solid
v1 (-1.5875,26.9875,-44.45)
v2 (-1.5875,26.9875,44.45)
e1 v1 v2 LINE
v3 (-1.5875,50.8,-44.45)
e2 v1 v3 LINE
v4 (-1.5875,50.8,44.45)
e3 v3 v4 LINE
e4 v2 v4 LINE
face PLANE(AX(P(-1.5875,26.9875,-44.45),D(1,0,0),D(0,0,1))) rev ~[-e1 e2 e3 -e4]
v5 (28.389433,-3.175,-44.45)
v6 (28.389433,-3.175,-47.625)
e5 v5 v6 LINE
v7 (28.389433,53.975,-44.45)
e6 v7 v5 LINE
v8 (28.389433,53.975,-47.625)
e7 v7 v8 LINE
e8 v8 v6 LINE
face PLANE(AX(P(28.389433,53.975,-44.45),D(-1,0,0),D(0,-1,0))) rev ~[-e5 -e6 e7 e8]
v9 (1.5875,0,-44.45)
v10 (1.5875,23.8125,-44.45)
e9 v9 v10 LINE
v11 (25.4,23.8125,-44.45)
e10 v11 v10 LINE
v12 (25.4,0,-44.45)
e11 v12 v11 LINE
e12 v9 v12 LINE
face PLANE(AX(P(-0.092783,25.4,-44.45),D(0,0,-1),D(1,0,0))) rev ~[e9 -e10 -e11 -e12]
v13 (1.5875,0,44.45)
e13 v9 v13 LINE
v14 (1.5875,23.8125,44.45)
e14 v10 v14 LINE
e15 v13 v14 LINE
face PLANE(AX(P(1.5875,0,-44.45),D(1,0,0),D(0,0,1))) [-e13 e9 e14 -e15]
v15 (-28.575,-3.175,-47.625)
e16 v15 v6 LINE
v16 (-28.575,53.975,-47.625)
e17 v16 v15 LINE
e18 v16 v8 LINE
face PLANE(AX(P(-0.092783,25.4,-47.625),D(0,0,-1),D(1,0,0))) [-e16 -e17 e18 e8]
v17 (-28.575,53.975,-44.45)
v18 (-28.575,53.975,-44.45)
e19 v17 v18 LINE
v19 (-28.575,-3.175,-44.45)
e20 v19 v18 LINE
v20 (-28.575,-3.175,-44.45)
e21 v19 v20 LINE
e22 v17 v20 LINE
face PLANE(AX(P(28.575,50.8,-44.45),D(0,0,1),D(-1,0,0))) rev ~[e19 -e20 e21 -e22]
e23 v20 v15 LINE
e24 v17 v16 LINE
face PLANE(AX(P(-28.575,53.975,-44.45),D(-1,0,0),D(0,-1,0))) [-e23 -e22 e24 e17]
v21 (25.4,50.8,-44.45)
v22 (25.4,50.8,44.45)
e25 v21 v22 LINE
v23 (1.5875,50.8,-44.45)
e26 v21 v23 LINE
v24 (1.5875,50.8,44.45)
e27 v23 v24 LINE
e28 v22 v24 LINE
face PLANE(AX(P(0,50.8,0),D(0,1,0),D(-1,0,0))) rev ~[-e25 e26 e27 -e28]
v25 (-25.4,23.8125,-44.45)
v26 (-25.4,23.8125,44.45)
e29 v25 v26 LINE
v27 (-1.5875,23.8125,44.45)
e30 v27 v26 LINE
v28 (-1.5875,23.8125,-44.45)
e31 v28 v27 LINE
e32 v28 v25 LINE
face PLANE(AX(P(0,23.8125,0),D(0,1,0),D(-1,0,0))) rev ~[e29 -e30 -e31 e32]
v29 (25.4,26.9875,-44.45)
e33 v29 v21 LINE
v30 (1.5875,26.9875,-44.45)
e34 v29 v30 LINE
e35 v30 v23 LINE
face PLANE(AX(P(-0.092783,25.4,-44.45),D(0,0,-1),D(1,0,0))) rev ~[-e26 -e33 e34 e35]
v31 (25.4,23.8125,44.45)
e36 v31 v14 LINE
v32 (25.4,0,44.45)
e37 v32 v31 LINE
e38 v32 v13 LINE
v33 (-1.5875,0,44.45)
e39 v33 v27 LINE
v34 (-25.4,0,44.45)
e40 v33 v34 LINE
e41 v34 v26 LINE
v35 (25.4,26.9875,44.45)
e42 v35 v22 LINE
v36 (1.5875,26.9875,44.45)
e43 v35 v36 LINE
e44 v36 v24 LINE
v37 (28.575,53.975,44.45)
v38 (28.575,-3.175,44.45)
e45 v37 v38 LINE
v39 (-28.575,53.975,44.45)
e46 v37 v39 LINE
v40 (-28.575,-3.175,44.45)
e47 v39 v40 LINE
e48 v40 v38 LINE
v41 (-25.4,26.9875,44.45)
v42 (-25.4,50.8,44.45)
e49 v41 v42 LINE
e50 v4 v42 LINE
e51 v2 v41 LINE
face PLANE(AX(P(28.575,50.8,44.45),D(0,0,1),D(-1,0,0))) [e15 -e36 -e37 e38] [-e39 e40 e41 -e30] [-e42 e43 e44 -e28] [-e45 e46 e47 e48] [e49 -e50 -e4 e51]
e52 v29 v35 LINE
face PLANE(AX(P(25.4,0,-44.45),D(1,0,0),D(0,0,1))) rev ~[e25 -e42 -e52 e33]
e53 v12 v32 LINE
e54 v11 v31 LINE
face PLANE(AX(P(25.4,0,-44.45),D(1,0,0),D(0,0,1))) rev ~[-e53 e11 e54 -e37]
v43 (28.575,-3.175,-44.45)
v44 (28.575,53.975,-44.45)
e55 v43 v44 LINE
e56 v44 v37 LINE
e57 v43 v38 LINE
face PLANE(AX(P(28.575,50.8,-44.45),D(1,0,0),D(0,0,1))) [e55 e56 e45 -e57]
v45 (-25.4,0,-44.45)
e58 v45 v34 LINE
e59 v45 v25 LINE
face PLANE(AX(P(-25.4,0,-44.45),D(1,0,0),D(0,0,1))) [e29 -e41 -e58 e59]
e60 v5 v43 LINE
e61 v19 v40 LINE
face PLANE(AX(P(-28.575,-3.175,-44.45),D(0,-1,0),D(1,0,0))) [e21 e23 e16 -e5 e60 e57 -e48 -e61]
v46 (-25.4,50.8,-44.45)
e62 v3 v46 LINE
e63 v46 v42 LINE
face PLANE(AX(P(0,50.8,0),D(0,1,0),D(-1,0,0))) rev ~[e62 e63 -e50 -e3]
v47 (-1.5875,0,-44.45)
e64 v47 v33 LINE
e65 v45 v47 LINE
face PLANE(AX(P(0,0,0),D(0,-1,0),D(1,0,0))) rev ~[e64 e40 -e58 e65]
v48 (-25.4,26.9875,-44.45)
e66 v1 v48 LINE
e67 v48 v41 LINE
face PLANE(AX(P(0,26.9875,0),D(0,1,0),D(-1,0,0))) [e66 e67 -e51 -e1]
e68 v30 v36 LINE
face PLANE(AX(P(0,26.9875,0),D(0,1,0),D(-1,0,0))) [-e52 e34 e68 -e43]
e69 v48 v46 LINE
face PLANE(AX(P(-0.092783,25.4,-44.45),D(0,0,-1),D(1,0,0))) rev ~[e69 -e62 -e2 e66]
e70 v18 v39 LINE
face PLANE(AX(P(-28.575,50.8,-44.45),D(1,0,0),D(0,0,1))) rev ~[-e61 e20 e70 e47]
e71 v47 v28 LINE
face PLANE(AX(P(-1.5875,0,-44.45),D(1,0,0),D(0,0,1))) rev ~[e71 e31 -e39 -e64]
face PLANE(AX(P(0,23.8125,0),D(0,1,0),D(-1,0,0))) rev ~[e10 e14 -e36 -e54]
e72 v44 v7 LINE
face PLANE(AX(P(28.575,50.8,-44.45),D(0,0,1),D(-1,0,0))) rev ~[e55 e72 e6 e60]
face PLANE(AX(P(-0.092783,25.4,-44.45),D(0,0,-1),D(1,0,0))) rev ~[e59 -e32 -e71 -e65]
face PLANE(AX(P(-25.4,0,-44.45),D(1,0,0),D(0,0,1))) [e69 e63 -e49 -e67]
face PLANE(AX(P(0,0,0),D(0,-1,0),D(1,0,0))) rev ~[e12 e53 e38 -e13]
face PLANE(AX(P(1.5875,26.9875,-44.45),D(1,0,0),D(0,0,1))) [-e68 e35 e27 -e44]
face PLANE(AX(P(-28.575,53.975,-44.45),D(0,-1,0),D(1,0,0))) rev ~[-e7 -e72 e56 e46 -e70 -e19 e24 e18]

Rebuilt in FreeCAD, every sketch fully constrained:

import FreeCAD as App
import Part
import Sketcher

V = App.Vector
Q = App.Units.Quantity

doc = App.newDocument("Part")
body = doc.addObject("PartDesign::Body", "Body")

sketch1 = body.newObject("Sketcher::SketchObject", "Sketch")
sketch1.AttachmentSupport = (doc.getObject("XZ_Plane"), [""])
sketch1.MapMode = "FlatFace"
sketch1.addGeometry([
    Part.LineSegment(V(-29, 44, 0), V(-29, -44, 0)),
    Part.LineSegment(V(-29, -44, 0), V(29, -44, 0)),
    Part.LineSegment(V(29, -44, 0), V(29, 44, 0)),
    Part.LineSegment(V(29, 44, 0), V(-29, 44, 0)),
], False)
sketch1.addConstraint([
    Sketcher.Constraint("Coincident", 0, 2, 1, 1),
    Sketcher.Constraint("Coincident", 1, 2, 2, 1),
    Sketcher.Constraint("Coincident", 2, 2, 3, 1),
    Sketcher.Constraint("Coincident", 3, 2, 0, 1),
    Sketcher.Constraint("Vertical", 0),
    Sketcher.Constraint("Horizontal", 1),
    Sketcher.Constraint("Vertical", 2),
    Sketcher.Constraint("Horizontal", 3),
    Sketcher.Constraint("Symmetric", 0, 2, 2, 2, -1, 1),
    Sketcher.Constraint("DistanceY", 0, 2, 0, 1, Q("3.5 in")),
    Sketcher.Constraint("DistanceX", 1, 1, 1, 2, Q("2.25 in")),
])
pad1 = body.newObject("PartDesign::Pad", "Pad")
pad1.Profile = sketch1
pad1.Length = Q("0.125 in")

sketch2 = body.newObject("Sketcher::SketchObject", "Sketch001")
sketch2.AttachmentSupport = (doc.getObject("XZ_Plane"), [""])
sketch2.MapMode = "FlatFace"
sketch2.addGeometry([
    Part.LineSegment(V(28.6, 44.5, 0), V(28.6, -44.5, 0)),
    Part.LineSegment(V(28.6, -44.5, 0), V(25.4, -44.5, 0)),
    Part.LineSegment(V(25.4, -44.5, 0), V(25.4, 44.5, 0)),
    Part.LineSegment(V(25.4, 44.5, 0), V(28.6, 44.5, 0)),
], False)
sketch2.addConstraint([
    Sketcher.Constraint("Coincident", 0, 2, 1, 1),
    Sketcher.Constraint("Coincident", 1, 2, 2, 1),
    Sketcher.Constraint("Coincident", 2, 2, 3, 1),
    Sketcher.Constraint("Coincident", 3, 2, 0, 1),
    Sketcher.Constraint("Vertical", 0),
    Sketcher.Constraint("Horizontal", 1),
    Sketcher.Constraint("Vertical", 2),
    Sketcher.Constraint("Horizontal", 3),
    Sketcher.Constraint("DistanceY", 0, 2, 0, 1, Q("3.5 in")),
    Sketcher.Constraint("DistanceX", -1, 1, 1, 2, Q("1 in")),
    Sketcher.Constraint("DistanceX", 1, 2, 1, 1, Q("0.125 in")),
    Sketcher.Constraint("DistanceY", 0, 2, -1, 1, Q("1.75 in")),
])
pad2 = body.newObject("PartDesign::Pad", "Pad001")
pad2.Profile = sketch2
pad2.Length = Q("2 in")
pad2.Reversed = True

sketch3 = body.newObject("Sketcher::SketchObject", "Sketch002")
sketch3.AttachmentSupport = (doc.getObject("XZ_Plane"), [""])
sketch3.MapMode = "FlatFace"
sketch3.addGeometry([
    Part.LineSegment(V(-25.4, 44.5, 0), V(-25.4, -44.5, 0)),
    Part.LineSegment(V(-25.4, -44.5, 0), V(-28.6, -44.5, 0)),
    Part.LineSegment(V(-28.6, -44.5, 0), V(-28.6, 44.5, 0)),
    Part.LineSegment(V(-28.6, 44.5, 0), V(-25.4, 44.5, 0)),
], False)
sketch3.addConstraint([
    Sketcher.Constraint("Coincident", 0, 2, 1, 1),
    Sketcher.Constraint("Coincident", 1, 2, 2, 1),
    Sketcher.Constraint("Coincident", 2, 2, 3, 1),
    Sketcher.Constraint("Coincident", 3, 2, 0, 1),
    Sketcher.Constraint("Vertical", 0),
    Sketcher.Constraint("Horizontal", 1),
    Sketcher.Constraint("Vertical", 2),
    Sketcher.Constraint("Horizontal", 3),
    Sketcher.Constraint("DistanceY", 0, 2, 0, 1, Q("3.5 in")),
    Sketcher.Constraint("DistanceX", 0, 2, -1, 1, Q("1 in")),
    Sketcher.Constraint("DistanceX", 1, 2, 1, 1, Q("0.125 in")),
    Sketcher.Constraint("DistanceY", 0, 2, -1, 1, Q("1.75 in")),
])
pad3 = body.newObject("PartDesign::Pad", "Pad002")
pad3.Profile = sketch3
pad3.Length = Q("2 in")
pad3.Reversed = True

sketch4 = body.newObject("Sketcher::SketchObject", "Sketch003")
sketch4.AttachmentSupport = (doc.getObject("XZ_Plane"), [""])
sketch4.MapMode = "FlatFace"
sketch4.addGeometry([
    Part.LineSegment(V(1.6, 44.5, 0), V(1.6, -44.5, 0)),
    Part.LineSegment(V(1.6, -44.5, 0), V(-1.6, -44.5, 0)),
    Part.LineSegment(V(-1.6, -44.5, 0), V(-1.6, 44.5, 0)),
    Part.LineSegment(V(-1.6, 44.5, 0), V(1.6, 44.5, 0)),
], False)
sketch4.addConstraint([
    Sketcher.Constraint("Coincident", 0, 2, 1, 1),
    Sketcher.Constraint("Coincident", 1, 2, 2, 1),
    Sketcher.Constraint("Coincident", 2, 2, 3, 1),
    Sketcher.Constraint("Coincident", 3, 2, 0, 1),
    Sketcher.Constraint("Vertical", 0),
    Sketcher.Constraint("Horizontal", 1),
    Sketcher.Constraint("Vertical", 2),
    Sketcher.Constraint("Horizontal", 3),
    Sketcher.Constraint("Symmetric", 0, 2, 2, 2, -1, 1),
    Sketcher.Constraint("DistanceY", 0, 2, 0, 1, Q("3.5 in")),
    Sketcher.Constraint("DistanceX", 1, 2, 1, 1, Q("0.125 in")),
])
pad4 = body.newObject("PartDesign::Pad", "Pad003")
pad4.Profile = sketch4
pad4.Length = Q("2 in")
pad4.Reversed = True

sketch5 = body.newObject("Sketcher::SketchObject", "Sketch004")
sketch5.AttachmentSupport = (doc.getObject("XZ_Plane"), [""])
sketch5.MapMode = "FlatFace"
sketch5.AttachmentOffset = App.Placement(V(0, 0, -2 * 25.4), App.Rotation())
sketch5.addGeometry([
    Part.LineSegment(V(1.6, 44.5, 0), V(1.6, -44.5, 0)),
    Part.LineSegment(V(1.6, -44.5, 0), V(-1.6, -44.5, 0)),
    Part.LineSegment(V(-1.6, -44.5, 0), V(-1.6, 44.5, 0)),
    Part.LineSegment(V(-1.6, 44.5, 0), V(1.6, 44.5, 0)),
], False)
sketch5.addConstraint([
    Sketcher.Constraint("Coincident", 0, 2, 1, 1),
    Sketcher.Constraint("Coincident", 1, 2, 2, 1),
    Sketcher.Constraint("Coincident", 2, 2, 3, 1),
    Sketcher.Constraint("Coincident", 3, 2, 0, 1),
    Sketcher.Constraint("Vertical", 0),
    Sketcher.Constraint("Horizontal", 1),
    Sketcher.Constraint("Vertical", 2),
    Sketcher.Constraint("Horizontal", 3),
    Sketcher.Constraint("Symmetric", 0, 2, 2, 2, -1, 1),
    Sketcher.Constraint("DistanceY", 0, 2, 0, 1, Q("3.5 in")),
    Sketcher.Constraint("DistanceX", 1, 2, 1, 1, Q("0.125 in")),
])
pocket1 = body.newObject("PartDesign::Pocket", "Pocket")
pocket1.Profile = sketch5
pocket1.Length = Q("2 in")
pocket1.Reversed = True
body2 = doc.addObject("PartDesign::Body", "Body001")

sketch6 = body2.newObject("Sketcher::SketchObject", "Sketch005")
sketch6.AttachmentSupport = (doc.getObject("XZ_Plane001"), [""])
sketch6.MapMode = "FlatFace"
sketch6.AttachmentOffset = App.Placement(V(0, 0, -1.0625 * 25.4), App.Rotation())
sketch6.addGeometry([
    Part.LineSegment(V(1.6, 44.5, 0), V(1.6, -44.5, 0)),
    Part.LineSegment(V(1.6, -44.5, 0), V(-1.6, -44.5, 0)),
    Part.LineSegment(V(-1.6, -44.5, 0), V(-1.6, 44.5, 0)),
    Part.LineSegment(V(-1.6, 44.5, 0), V(1.6, 44.5, 0)),
], False)
sketch6.addConstraint([
    Sketcher.Constraint("Coincident", 0, 2, 1, 1),
    Sketcher.Constraint("Coincident", 1, 2, 2, 1),
    Sketcher.Constraint("Coincident", 2, 2, 3, 1),
    Sketcher.Constraint("Coincident", 3, 2, 0, 1),
    Sketcher.Constraint("Vertical", 0),
    Sketcher.Constraint("Horizontal", 1),
    Sketcher.Constraint("Vertical", 2),
    Sketcher.Constraint("Horizontal", 3),
    Sketcher.Constraint("Symmetric", 0, 2, 2, 2, -1, 1),
    Sketcher.Constraint("DistanceY", 0, 2, 0, 1, Q("3.5 in")),
    Sketcher.Constraint("DistanceX", 1, 2, 1, 1, Q("0.125 in")),
])
pad5 = body2.newObject("PartDesign::Pad", "Pad004")
pad5.Profile = sketch6
pad5.Length = Q("0.9375 in")
pad5.Reversed = True
body.AllowCompound = True
doc.recompute()

boolean = body.newObject("PartDesign::Boolean", "Boolean")
boolean.Type = "Fuse"
boolean.addObjects([body2])

sketch7 = body.newObject("Sketcher::SketchObject", "Sketch006")
sketch7.AttachmentSupport = (doc.getObject("XZ_Plane"), [""])
sketch7.MapMode = "FlatFace"
sketch7.AttachmentOffset = App.Placement(V(0, 0, -0.9375 * 25.4), App.Rotation())
sketch7.addGeometry([
    Part.LineSegment(V(25, 44, 0), V(25, -44, 0)),
    Part.LineSegment(V(25, -44, 0), V(-25, -44, 0)),
    Part.LineSegment(V(-25, -44, 0), V(-25, 44, 0)),
    Part.LineSegment(V(-25, 44, 0), V(25, 44, 0)),
], False)
sketch7.addConstraint([
    Sketcher.Constraint("Coincident", 0, 2, 1, 1),
    Sketcher.Constraint("Coincident", 1, 2, 2, 1),
    Sketcher.Constraint("Coincident", 2, 2, 3, 1),
    Sketcher.Constraint("Coincident", 3, 2, 0, 1),
    Sketcher.Constraint("Vertical", 0),
    Sketcher.Constraint("Horizontal", 1),
    Sketcher.Constraint("Vertical", 2),
    Sketcher.Constraint("Horizontal", 3),
    Sketcher.Constraint("Symmetric", 0, 2, 2, 2, -1, 1),
    Sketcher.Constraint("DistanceX", 1, 2, 1, 1, Q("2 in")),
    Sketcher.Constraint("DistanceY", 0, 2, 0, 1, Q("3.5 in")),
])
pad6 = body.newObject("PartDesign::Pad", "Pad005")
pad6.Profile = sketch7
pad6.Length = Q("0.125 in")
pad6.Reversed = True

sketch8 = body.newObject("Sketcher::SketchObject", "Sketch007")
sketch8.AttachmentSupport = (doc.getObject("XZ_Plane"), [""])
sketch8.MapMode = "FlatFace"
sketch8.addGeometry([
    Part.LineSegment(V(1.6, 44.5, 0), V(1.6, -44.5, 0)),
    Part.LineSegment(V(1.6, -44.5, 0), V(-1.6, -44.5, 0)),
    Part.LineSegment(V(-1.6, -44.5, 0), V(-1.6, 44.5, 0)),
    Part.LineSegment(V(-1.6, 44.5, 0), V(1.6, 44.5, 0)),
], False)
sketch8.addConstraint([
    Sketcher.Constraint("Coincident", 0, 2, 1, 1),
    Sketcher.Constraint("Coincident", 1, 2, 2, 1),
    Sketcher.Constraint("Coincident", 2, 2, 3, 1),
    Sketcher.Constraint("Coincident", 3, 2, 0, 1),
    Sketcher.Constraint("Vertical", 0),
    Sketcher.Constraint("Horizontal", 1),
    Sketcher.Constraint("Vertical", 2),
    Sketcher.Constraint("Horizontal", 3),
    Sketcher.Constraint("Symmetric", 0, 2, 2, 2, -1, 1),
    Sketcher.Constraint("DistanceY", 0, 2, 0, 1, Q("3.5 in")),
    Sketcher.Constraint("DistanceX", 1, 2, 1, 1, Q("0.125 in")),
])
pad7 = body.newObject("PartDesign::Pad", "Pad006")
pad7.Profile = sketch8
pad7.Length = Q("0.9375 in")
pad7.Reversed = True

sketch9 = body.newObject("Sketcher::SketchObject", "Sketch008")
sketch9.AttachmentSupport = (doc.getObject("XZ_Plane"), [""])
sketch9.MapMode = "FlatFace"
sketch9.AttachmentOffset = App.Placement(V(0, 0, -2 * 25.4), App.Rotation())
sketch9.addGeometry([
    Part.LineSegment(V(29, 44, 0), V(29, -44, 0)),
    Part.LineSegment(V(29, -44, 0), V(-29, -44, 0)),
    Part.LineSegment(V(-29, -44, 0), V(-29, 44, 0)),
    Part.LineSegment(V(-29, 44, 0), V(29, 44, 0)),
], False)
sketch9.addConstraint([
    Sketcher.Constraint("Coincident", 0, 2, 1, 1),
    Sketcher.Constraint("Coincident", 1, 2, 2, 1),
    Sketcher.Constraint("Coincident", 2, 2, 3, 1),
    Sketcher.Constraint("Coincident", 3, 2, 0, 1),
    Sketcher.Constraint("Vertical", 0),
    Sketcher.Constraint("Horizontal", 1),
    Sketcher.Constraint("Vertical", 2),
    Sketcher.Constraint("Horizontal", 3),
    Sketcher.Constraint("Symmetric", 0, 2, 2, 2, -1, 1),
    Sketcher.Constraint("DistanceY", 0, 2, 0, 1, Q("3.5 in")),
    Sketcher.Constraint("DistanceX", 1, 2, 1, 1, Q("2.25 in")),
])
pad8 = body.newObject("PartDesign::Pad", "Pad007")
pad8.Profile = sketch9
pad8.Length = Q("0.125 in")
pad8.Reversed = True

sketch10 = body.newObject("Sketcher::SketchObject", "Sketch009")
sketch10.AttachmentSupport = (doc.getObject("XY_Plane"), [""])
sketch10.MapMode = "FlatFace"
sketch10.AttachmentOffset = App.Placement(V(0, 0, -1.75 * 25.4), App.Rotation())
sketch10.addGeometry([
    Part.LineSegment(V(-29, -3, 0), V(-29, 54, 0)),
    Part.LineSegment(V(-29, 54, 0), V(28, 54, 0)),
    Part.LineSegment(V(28, 54, 0), V(28, -3, 0)),
    Part.LineSegment(V(28, -3, 0), V(-29, -3, 0)),
], False)
sketch10.addConstraint([
    Sketcher.Constraint("Coincident", 0, 2, 1, 1),
    Sketcher.Constraint("Coincident", 1, 2, 2, 1),
    Sketcher.Constraint("Coincident", 2, 2, 3, 1),
    Sketcher.Constraint("Coincident", 3, 2, 0, 1),
    Sketcher.Constraint("Vertical", 0),
    Sketcher.Constraint("Horizontal", 1),
    Sketcher.Constraint("Vertical", 2),
    Sketcher.Constraint("Horizontal", 3),
    Sketcher.Constraint("DistanceY", 0, 1, 0, 2, Q("2.25 in")),
    Sketcher.Constraint("DistanceX", 0, 2, -1, 1, Q("1.125 in")),
    Sketcher.Constraint("DistanceY", -1, 1, 0, 2, Q("2.125 in")),
    Sketcher.Constraint("DistanceX", 1, 1, 1, 2, 56.964433),
])
pad9 = body.newObject("PartDesign::Pad", "Pad008")
pad9.Profile = sketch10
pad9.Length = Q("0.125 in")
pad9.Reversed = True

doc.recompute()
